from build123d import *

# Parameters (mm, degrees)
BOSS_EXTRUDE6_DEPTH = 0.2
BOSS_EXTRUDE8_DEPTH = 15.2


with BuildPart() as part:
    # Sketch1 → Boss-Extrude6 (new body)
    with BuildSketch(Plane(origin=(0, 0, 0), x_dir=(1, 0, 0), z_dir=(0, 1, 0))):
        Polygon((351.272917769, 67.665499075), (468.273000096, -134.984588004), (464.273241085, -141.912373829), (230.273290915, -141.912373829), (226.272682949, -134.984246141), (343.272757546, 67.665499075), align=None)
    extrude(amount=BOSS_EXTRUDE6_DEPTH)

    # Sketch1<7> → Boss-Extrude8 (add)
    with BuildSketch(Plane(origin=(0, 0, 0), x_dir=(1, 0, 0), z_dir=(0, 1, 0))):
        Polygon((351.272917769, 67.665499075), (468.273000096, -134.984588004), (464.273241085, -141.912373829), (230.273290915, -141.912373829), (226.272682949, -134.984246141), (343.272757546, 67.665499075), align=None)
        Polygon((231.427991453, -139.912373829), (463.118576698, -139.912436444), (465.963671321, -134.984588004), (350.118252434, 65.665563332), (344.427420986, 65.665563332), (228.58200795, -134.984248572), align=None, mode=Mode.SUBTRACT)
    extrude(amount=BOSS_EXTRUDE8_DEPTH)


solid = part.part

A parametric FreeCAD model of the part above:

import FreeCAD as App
import Part
import Sketcher
from FreeCAD import Vector
Q = App.Units.Quantity


def add_polygon(sketch, points):
    """Adds a closed chain of lines whose ends are joined by coincident constraints."""
    first, n = sketch.GeometryCount, len(points)
    for a, b in zip(points, points[1:] + points[:1]):
        sketch.addGeometry(Part.LineSegment(App.Vector(*a, 0), App.Vector(*b, 0)), False)
    for i in range(n):
        sketch.addConstraint(Sketcher.Constraint("Coincident", first + i, 2, first + (i + 1) % n, 1))

doc = App.newDocument("Part")
body = doc.addObject("PartDesign::Body", "Body")

sketch1 = body.newObject("Sketcher::SketchObject", "Sketch")
sketch1.AttachmentSupport = (doc.getObject("XZ_Plane"), [""])
sketch1.MapMode = "FlatFace"
add_polygon(sketch1, [(468.273, 134.984588), (351.272918, -67.665499), (343.272758, -67.665499), (226.272683, 134.984246), (230.273291, 141.912374), (464.273241, 141.912374)])
sketch1.addConstraint([
    Sketcher.Constraint("Horizontal", 1),
    Sketcher.Constraint("Horizontal", 4),
    Sketcher.Constraint("Parallel", 2, 5),
    Sketcher.Constraint("Angle", 0, Q("-120 deg")),
    Sketcher.Constraint("Angle", 5, Q("-60 deg")),
    Sketcher.Constraint("DistanceX", -1, 1, 5, 2, 468.273),
    Sketcher.Constraint("DistanceX", 1, 2, 1, 1, 8.00016),
    Sketcher.Constraint("DistanceX", 4, 1, 4, 2, 233.99995),
    Sketcher.Constraint("DistanceY", 0, 2, -1, 1, 67.665499),
    Sketcher.Constraint("Distance", 3, 8.000239),
    Sketcher.Constraint("Distance", 5, 7.999518),
    Sketcher.Constraint("DistanceY", -1, 1, 5, 2, 134.984588),
])
pad1 = body.newObject("PartDesign::Pad", "Pad")
pad1.Profile = sketch1
pad1.Length = 0.2
pad1.Reversed = True

sketch2 = body.newObject("Sketcher::SketchObject", "Sketch001")
sketch2.AttachmentSupport = (doc.getObject("XZ_Plane"), [""])
sketch2.MapMode = "FlatFace"
add_polygon(sketch2, [(468.273, 134.984588), (351.272918, -67.665499), (343.272758, -67.665499), (226.272683, 134.984246), (230.273291, 141.912374), (464.273241, 141.912374)])
add_polygon(sketch2, [(231.427991, 139.912374), (228.582008, 134.984249), (344.427421, -65.665563), (350.118252, -65.665563), (465.963671, 134.984588), (463.118577, 139.912436)])
sketch2.addConstraint([
    Sketcher.Constraint("Horizontal", 1),
    Sketcher.Constraint("Horizontal", 4),
    Sketcher.Constraint("Horizontal", 8),
    Sketcher.Constraint("Parallel", 2, 5),
    Sketcher.Constraint("Parallel", 5, 7),
    Sketcher.Constraint("Parallel", 0, 9),
    Sketcher.Constraint("Parallel", 7, 10),
    Sketcher.Constraint("Horizontal", 5, 2, 9, 2),
    Sketcher.Constraint("Angle", 0, Q("-120 deg")),
    Sketcher.Constraint("Angle", 5, Q("-60 deg")),
    Sketcher.Constraint("Angle", 11, Q("-179.999985 deg")),
    Sketcher.Constraint("DistanceY", 11, 2, 3, 2, 2.0),
    Sketcher.Constraint("DistanceX", -1, 1, 5, 2, 468.273),
    Sketcher.Constraint("DistanceY", 8, 2, 10, 2, 205.578),
    Sketcher.Constraint("DistanceX", 1, 2, 1, 1, 8.00016),
    Sketcher.Constraint("DistanceX", 4, 1, 4, 2, 233.99995),
    Sketcher.Constraint("DistanceX", 8, 1, 8, 2, 5.690831),
    Sketcher.Constraint("DistanceY", 0, 2, -1, 1, 67.665499),
    Sketcher.Constraint("DistanceX", 3, 2, 11, 2, 1.154701),
    Sketcher.Constraint("Distance", 3, 8.000239),
    Sketcher.Constraint("Distance", 5, 7.999518),
    Sketcher.Constraint("Distance", 7, 231.690541),
    Sketcher.Constraint("DistanceY", -1, 1, 5, 2, 134.984588),
    Sketcher.Constraint("DistanceX", -1, 1, 7, 2, 344.427421),
])
pad2 = body.newObject("PartDesign::Pad", "Pad001")
pad2.Profile = sketch2
pad2.Length = 15.2
pad2.Reversed = True

doc.recompute()
